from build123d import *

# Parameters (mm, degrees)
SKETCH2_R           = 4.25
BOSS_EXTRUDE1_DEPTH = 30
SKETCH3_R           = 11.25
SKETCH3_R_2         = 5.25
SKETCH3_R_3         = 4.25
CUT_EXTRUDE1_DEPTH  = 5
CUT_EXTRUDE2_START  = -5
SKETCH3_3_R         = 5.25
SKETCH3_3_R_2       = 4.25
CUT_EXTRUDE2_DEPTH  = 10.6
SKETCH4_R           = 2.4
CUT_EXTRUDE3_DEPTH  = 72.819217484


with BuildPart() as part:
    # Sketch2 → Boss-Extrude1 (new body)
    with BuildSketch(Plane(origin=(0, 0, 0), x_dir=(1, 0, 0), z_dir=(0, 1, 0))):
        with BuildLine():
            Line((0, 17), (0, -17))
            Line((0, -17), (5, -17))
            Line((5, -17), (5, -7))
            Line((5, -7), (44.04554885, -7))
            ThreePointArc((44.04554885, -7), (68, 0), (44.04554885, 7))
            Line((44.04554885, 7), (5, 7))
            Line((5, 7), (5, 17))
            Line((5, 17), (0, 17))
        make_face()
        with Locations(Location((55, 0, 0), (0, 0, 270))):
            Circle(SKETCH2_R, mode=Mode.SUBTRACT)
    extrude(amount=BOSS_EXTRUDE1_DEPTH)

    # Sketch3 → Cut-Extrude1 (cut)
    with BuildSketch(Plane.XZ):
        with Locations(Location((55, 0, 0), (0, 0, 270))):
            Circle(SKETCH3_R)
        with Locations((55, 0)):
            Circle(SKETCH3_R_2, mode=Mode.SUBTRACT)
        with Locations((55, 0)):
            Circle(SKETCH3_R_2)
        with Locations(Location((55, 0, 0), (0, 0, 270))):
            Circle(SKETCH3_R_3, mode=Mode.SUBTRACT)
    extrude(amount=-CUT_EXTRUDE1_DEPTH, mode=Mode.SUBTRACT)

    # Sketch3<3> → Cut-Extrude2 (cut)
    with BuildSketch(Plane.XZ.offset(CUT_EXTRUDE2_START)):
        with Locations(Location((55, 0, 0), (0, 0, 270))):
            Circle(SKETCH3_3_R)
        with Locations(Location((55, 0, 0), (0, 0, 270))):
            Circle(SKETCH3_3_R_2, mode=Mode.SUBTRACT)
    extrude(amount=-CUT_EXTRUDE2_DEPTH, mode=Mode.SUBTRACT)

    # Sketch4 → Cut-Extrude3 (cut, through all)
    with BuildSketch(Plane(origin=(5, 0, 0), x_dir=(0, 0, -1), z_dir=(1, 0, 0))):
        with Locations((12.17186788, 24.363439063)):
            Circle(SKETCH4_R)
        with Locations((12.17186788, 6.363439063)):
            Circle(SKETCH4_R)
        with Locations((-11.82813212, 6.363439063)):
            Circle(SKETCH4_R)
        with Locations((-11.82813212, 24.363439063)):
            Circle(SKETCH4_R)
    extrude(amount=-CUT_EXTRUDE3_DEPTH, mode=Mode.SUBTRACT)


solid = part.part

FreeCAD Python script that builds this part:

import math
import FreeCAD as App
import Part
import Sketcher

doc = App.newDocument("Part")
body = doc.addObject("PartDesign::Body", "Body")

# Sketch on XZ plane
sketch1 = body.newObject("Sketcher::SketchObject", "Sketch")
sketch1.AttachmentSupport = (doc.getObject("XZ_Plane"), [""])
sketch1.MapMode = "FlatFace"
sketch1.addGeometry([
    Part.LineSegment(App.Vector(0, -17, 0), App.Vector(0, 17, 0)),  # 0
    Part.LineSegment(App.Vector(0, 17, 0), App.Vector(5, 17, 0)),  # 1
    Part.LineSegment(App.Vector(5, 17, 0), App.Vector(5, 7, 0)),  # 2
    Part.LineSegment(App.Vector(5, 7, 0), App.Vector(44, 7, 0)),  # 3
    Part.ArcOfCircle(Part.Circle(App.Vector(55, 0, 0), App.Vector(0, 0, 1), 13), math.radians(-147), math.radians(147)),  # 4
    Part.LineSegment(App.Vector(44, -7, 0), App.Vector(5, -7, 0)),  # 5
    Part.LineSegment(App.Vector(5, -7, 0), App.Vector(5, -17, 0)),  # 6
    Part.LineSegment(App.Vector(5, -17, 0), App.Vector(0, -17, 0)),  # 7
    Part.Circle(App.Vector(55, 0, 0), App.Vector(0, 0, 1), 4.2),  # 8
], False)
sketch1.addConstraint([
    Sketcher.Constraint("Coincident", 0, 2, 1, 1),
    Sketcher.Constraint("Coincident", 1, 2, 2, 1),
    Sketcher.Constraint("Coincident", 2, 2, 3, 1),
    Sketcher.Constraint("Coincident", 3, 2, 4, 2),
    Sketcher.Constraint("Coincident", 4, 1, 5, 1),
    Sketcher.Constraint("Coincident", 5, 2, 6, 1),
    Sketcher.Constraint("Coincident", 6, 2, 7, 1),
    Sketcher.Constraint("Coincident", 7, 2, 0, 1),
    Sketcher.Constraint("Vertical", 0),
    Sketcher.Constraint("Horizontal", 1),
    Sketcher.Constraint("Vertical", 2),
    Sketcher.Constraint("Horizontal", 3),
    Sketcher.Constraint("Horizontal", 5),
    Sketcher.Constraint("Vertical", 6),
    Sketcher.Constraint("Horizontal", 7),
    Sketcher.Constraint("Coincident", 8, 3, 4, 3),
    Sketcher.Constraint("Symmetric", 0, 2, 7, 2, -1, 1),
    Sketcher.Constraint("Symmetric", 3, 2, 4, 1, -1),
    Sketcher.Constraint("Vertical", 2, 2, 5, 2),
    Sketcher.Constraint("Radius", 4, 13.0),
    Sketcher.Constraint("Diameter", 8, 8.5),
    Sketcher.Constraint("DistanceX", 1, 1, 1, 2, 5.0),
    Sketcher.Constraint("DistanceY", 0, 1, 0, 2, 34.0),
    Sketcher.Constraint("DistanceY", 2, 2, 2, 1, 10.0),
    Sketcher.Constraint("DistanceX", -1, 1, 4, 3, 55.0),
])
pad1 = body.newObject("PartDesign::Pad", "Pad")
pad1.Profile = sketch1
pad1.Length = 30
pad1.Reversed = True

# Sketch on XZ plane
sketch2 = body.newObject("Sketcher::SketchObject", "Sketch001")
sketch2.AttachmentSupport = (doc.getObject("XZ_Plane"), [""])
sketch2.MapMode = "FlatFace"
sketch2.addGeometry([
    Part.Circle(App.Vector(55, 0, 0), App.Vector(0, 0, 1), 11.2),
    Part.Circle(App.Vector(55, 0, 0), App.Vector(0, 0, 1), 4.2),
], False)
sketch2.addConstraint([
    Sketcher.Constraint("Coincident", 1, 3, 0, 3),
    Sketcher.Constraint("PointOnObject", 0, 3, -1),
    Sketcher.Constraint("Diameter", 0, 22.5),
    Sketcher.Constraint("Diameter", 1, 8.5),
    Sketcher.Constraint("DistanceX", -1, 1, 0, 3, 55.0),
])
pocket1 = body.newObject("PartDesign::Pocket", "Pocket")
pocket1.Profile = sketch2
pocket1.Length = 5

# Sketch on XZ plane
sketch3 = body.newObject("Sketcher::SketchObject", "Sketch002")
sketch3.AttachmentSupport = (doc.getObject("XZ_Plane"), [""])
sketch3.MapMode = "FlatFace"
sketch3.AttachmentOffset = App.Placement(App.Vector(0, 0, -5), App.Rotation())
sketch3.addGeometry([
    Part.Circle(App.Vector(55, 0, 0), App.Vector(0, 0, 1), 5.2),
    Part.Circle(App.Vector(55, 0, 0), App.Vector(0, 0, 1), 4.2),
], False)
sketch3.addConstraint([
    Sketcher.Constraint("Coincident", 1, 3, 0, 3),
    Sketcher.Constraint("PointOnObject", 0, 3, -1),
    Sketcher.Constraint("Diameter", 0, 10.5),
    Sketcher.Constraint("Diameter", 1, 8.5),
    Sketcher.Constraint("DistanceX", -1, 1, 0, 3, 55.0),
])
pocket2 = body.newObject("PartDesign::Pocket", "Pocket001")
pocket2.Profile = sketch3
pocket2.Length = 10.6

# Sketch on YZ plane
sketch4 = body.newObject("Sketcher::SketchObject", "Sketch003")
sketch4.AttachmentSupport = (doc.getObject("YZ_Plane"), [""])
sketch4.MapMode = "FlatFace"
sketch4.AttachmentOffset = App.Placement(App.Vector(0, 0, 5), App.Rotation())
sketch4.addGeometry([
    Part.Circle(App.Vector(24.4, -12.2, 0), App.Vector(0, 0, 1), 2.4),
    Part.Circle(App.Vector(6.4, -12.2, 0), App.Vector(0, 0, 1), 2.4),
    Part.Circle(App.Vector(6.4, 11.8, 0), App.Vector(0, 0, 1), 2.4),
    Part.Circle(App.Vector(24.4, 11.8, 0), App.Vector(0, 0, 1), 2.4),
], False)
sketch4.addConstraint([
    Sketcher.Constraint("Equal", 0, 1),
    Sketcher.Constraint("Equal", 1, 2),
    Sketcher.Constraint("Equal", 2, 3),
    Sketcher.Constraint("Horizontal", 0, 3, 1, 3),
    Sketcher.Constraint("Horizontal", 2, 3, 3, 3),
    Sketcher.Constraint("Vertical", 1, 3, 2, 3),
    Sketcher.Constraint("Vertical", 0, 3, 3, 3),
    Sketcher.Constraint("Diameter", 0, 4.8),
    Sketcher.Constraint("DistanceX", 1, 3, 0, 3, 18.0),
    Sketcher.Constraint("DistanceY", 1, 3, 2, 3, 24.0),
    Sketcher.Constraint("DistanceX", -1, 1, 0, 3, 24.363439),
    Sketcher.Constraint("DistanceY", 0, 3, -1, 1, 12.171868),
])
pocket3 = body.newObject("PartDesign::Pocket", "Pocket002")
pocket3.Profile = sketch4
pocket3.Type = "ThroughAll"

doc.recompute()
